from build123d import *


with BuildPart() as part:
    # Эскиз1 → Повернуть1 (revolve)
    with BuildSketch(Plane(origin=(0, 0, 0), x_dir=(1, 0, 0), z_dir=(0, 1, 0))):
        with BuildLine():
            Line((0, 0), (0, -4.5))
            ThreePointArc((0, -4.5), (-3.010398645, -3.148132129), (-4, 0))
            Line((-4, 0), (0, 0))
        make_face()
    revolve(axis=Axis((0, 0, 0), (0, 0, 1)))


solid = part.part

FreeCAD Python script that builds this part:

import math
import FreeCAD as App
import Part
import Sketcher
from FreeCAD import Vector
Q = App.Units.Quantity

doc = App.newDocument("Part")
body = doc.addObject("PartDesign::Body", "Body")

# Sketch on XZ plane
sketch1 = body.newObject("Sketcher::SketchObject", "Sketch")
sketch1.AttachmentSupport = (doc.getObject("XZ_Plane"), [""])
sketch1.MapMode = "FlatFace"
sketch1.addGeometry(Part.LineSegment(Vector(0, 4.5, 0), Vector(0, 0, 0)), False)
sketch1.addGeometry(Part.LineSegment(Vector(0, 0, 0), Vector(-4, 0, 0)), False)
sketch1.addGeometry(Part.ArcOfCircle(Part.Circle(Vector(0, 0.472222, 0), Vector(0, 0, 1), 4.027778), math.radians(90), math.radians(186.732921)), False)
sketch1.addConstraint(Sketcher.Constraint("Coincident", 0, 2, 1, 1))
sketch1.addConstraint(Sketcher.Constraint("Coincident", 1, 2, 2, 2))
sketch1.addConstraint(Sketcher.Constraint("Coincident", 2, 1, 0, 1))
sketch1.addConstraint(Sketcher.Constraint("Vertical", 0))
sketch1.addConstraint(Sketcher.Constraint("Horizontal", 1))
sketch1.addConstraint(Sketcher.Constraint("Coincident", 0, 2, -1, 1))
sketch1.addConstraint(Sketcher.Constraint("PointOnObject", 2, 3, -2))
sketch1.addConstraint(Sketcher.Constraint("DistanceX", 1, 2, 1, 1, Q("4 mm")))
sketch1.addConstraint(Sketcher.Constraint("DistanceY", 0, 2, 0, 1, Q("4.5 mm")))
revolution = body.newObject("PartDesign::Revolution", "Revolution")
revolution.Profile = sketch1
revolution.ReferenceAxis = (sketch1, ["V_Axis"])
revolution.Angle = 360

doc.recompute()
